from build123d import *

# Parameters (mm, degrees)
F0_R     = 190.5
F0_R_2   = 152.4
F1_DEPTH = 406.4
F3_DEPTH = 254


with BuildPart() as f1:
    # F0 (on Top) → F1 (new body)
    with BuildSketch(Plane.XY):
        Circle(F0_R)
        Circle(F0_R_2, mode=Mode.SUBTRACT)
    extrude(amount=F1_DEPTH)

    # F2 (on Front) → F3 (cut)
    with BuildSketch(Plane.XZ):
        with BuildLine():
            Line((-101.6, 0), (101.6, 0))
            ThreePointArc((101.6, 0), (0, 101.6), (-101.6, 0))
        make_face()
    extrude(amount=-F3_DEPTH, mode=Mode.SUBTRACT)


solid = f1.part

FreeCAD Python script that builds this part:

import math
import FreeCAD as App
import Part
import Sketcher
Q = App.Units.Quantity

doc = App.newDocument("Part")
body = doc.addObject("PartDesign::Body", "Body")

# Sketch on XY plane
sketch1 = doc.addObject("Sketcher::SketchObject", "Sketch")
body.addObject(sketch1)
sketch1.AttachmentSupport = (doc.XY_Plane, [""])
sketch1.MapMode = "FlatFace"
sketch1.addGeometry([
    Part.Circle(App.Vector(0, 0, 0), App.Vector(0, 0, 1), 190),
    Part.Circle(App.Vector(0, 0, 0), App.Vector(0, 0, 1), 152),
], False)
sketch1.addConstraint([
    Sketcher.Constraint("Coincident", 0, 3, -1, 1),
    Sketcher.Constraint("Coincident", 1, 3, -1, 1),
    Sketcher.Constraint("Diameter", 0, Q("15 in")),
    Sketcher.Constraint("Diameter", 1, Q("12 in")),
])
pad1 = doc.addObject("PartDesign::Pad", "Pad")
body.addObject(pad1)
pad1.Profile = sketch1
pad1.Length = Q("16 in")

# Sketch on XZ plane
sketch2 = doc.addObject("Sketcher::SketchObject", "Sketch001")
body.addObject(sketch2)
sketch2.AttachmentSupport = (doc.XZ_Plane, [""])
sketch2.MapMode = "FlatFace"
sketch2.addGeometry([
    Part.LineSegment(App.Vector(-102, 0, 0), App.Vector(102, 0, 0)),
    Part.ArcOfCircle(Part.Circle(App.Vector(0, 0, 0), App.Vector(0, 0, 1), 102), math.radians(0), math.radians(180)),
], False)
sketch2.addConstraint([
    Sketcher.Constraint("Coincident", 0, 1, 1, 2),
    Sketcher.Constraint("Coincident", 1, 1, 0, 2),
    Sketcher.Constraint("Horizontal", 0),
    Sketcher.Constraint("Coincident", 1, 3, -1, 1),
    Sketcher.Constraint("PointOnObject", 0, 1, -1),
    Sketcher.Constraint("Radius", 1, Q("4 in")),
])
pocket1 = doc.addObject("PartDesign::Pocket", "Pocket")
body.addObject(pocket1)
pocket1.Profile = sketch2
pocket1.Length = Q("10 in")

doc.recompute()
